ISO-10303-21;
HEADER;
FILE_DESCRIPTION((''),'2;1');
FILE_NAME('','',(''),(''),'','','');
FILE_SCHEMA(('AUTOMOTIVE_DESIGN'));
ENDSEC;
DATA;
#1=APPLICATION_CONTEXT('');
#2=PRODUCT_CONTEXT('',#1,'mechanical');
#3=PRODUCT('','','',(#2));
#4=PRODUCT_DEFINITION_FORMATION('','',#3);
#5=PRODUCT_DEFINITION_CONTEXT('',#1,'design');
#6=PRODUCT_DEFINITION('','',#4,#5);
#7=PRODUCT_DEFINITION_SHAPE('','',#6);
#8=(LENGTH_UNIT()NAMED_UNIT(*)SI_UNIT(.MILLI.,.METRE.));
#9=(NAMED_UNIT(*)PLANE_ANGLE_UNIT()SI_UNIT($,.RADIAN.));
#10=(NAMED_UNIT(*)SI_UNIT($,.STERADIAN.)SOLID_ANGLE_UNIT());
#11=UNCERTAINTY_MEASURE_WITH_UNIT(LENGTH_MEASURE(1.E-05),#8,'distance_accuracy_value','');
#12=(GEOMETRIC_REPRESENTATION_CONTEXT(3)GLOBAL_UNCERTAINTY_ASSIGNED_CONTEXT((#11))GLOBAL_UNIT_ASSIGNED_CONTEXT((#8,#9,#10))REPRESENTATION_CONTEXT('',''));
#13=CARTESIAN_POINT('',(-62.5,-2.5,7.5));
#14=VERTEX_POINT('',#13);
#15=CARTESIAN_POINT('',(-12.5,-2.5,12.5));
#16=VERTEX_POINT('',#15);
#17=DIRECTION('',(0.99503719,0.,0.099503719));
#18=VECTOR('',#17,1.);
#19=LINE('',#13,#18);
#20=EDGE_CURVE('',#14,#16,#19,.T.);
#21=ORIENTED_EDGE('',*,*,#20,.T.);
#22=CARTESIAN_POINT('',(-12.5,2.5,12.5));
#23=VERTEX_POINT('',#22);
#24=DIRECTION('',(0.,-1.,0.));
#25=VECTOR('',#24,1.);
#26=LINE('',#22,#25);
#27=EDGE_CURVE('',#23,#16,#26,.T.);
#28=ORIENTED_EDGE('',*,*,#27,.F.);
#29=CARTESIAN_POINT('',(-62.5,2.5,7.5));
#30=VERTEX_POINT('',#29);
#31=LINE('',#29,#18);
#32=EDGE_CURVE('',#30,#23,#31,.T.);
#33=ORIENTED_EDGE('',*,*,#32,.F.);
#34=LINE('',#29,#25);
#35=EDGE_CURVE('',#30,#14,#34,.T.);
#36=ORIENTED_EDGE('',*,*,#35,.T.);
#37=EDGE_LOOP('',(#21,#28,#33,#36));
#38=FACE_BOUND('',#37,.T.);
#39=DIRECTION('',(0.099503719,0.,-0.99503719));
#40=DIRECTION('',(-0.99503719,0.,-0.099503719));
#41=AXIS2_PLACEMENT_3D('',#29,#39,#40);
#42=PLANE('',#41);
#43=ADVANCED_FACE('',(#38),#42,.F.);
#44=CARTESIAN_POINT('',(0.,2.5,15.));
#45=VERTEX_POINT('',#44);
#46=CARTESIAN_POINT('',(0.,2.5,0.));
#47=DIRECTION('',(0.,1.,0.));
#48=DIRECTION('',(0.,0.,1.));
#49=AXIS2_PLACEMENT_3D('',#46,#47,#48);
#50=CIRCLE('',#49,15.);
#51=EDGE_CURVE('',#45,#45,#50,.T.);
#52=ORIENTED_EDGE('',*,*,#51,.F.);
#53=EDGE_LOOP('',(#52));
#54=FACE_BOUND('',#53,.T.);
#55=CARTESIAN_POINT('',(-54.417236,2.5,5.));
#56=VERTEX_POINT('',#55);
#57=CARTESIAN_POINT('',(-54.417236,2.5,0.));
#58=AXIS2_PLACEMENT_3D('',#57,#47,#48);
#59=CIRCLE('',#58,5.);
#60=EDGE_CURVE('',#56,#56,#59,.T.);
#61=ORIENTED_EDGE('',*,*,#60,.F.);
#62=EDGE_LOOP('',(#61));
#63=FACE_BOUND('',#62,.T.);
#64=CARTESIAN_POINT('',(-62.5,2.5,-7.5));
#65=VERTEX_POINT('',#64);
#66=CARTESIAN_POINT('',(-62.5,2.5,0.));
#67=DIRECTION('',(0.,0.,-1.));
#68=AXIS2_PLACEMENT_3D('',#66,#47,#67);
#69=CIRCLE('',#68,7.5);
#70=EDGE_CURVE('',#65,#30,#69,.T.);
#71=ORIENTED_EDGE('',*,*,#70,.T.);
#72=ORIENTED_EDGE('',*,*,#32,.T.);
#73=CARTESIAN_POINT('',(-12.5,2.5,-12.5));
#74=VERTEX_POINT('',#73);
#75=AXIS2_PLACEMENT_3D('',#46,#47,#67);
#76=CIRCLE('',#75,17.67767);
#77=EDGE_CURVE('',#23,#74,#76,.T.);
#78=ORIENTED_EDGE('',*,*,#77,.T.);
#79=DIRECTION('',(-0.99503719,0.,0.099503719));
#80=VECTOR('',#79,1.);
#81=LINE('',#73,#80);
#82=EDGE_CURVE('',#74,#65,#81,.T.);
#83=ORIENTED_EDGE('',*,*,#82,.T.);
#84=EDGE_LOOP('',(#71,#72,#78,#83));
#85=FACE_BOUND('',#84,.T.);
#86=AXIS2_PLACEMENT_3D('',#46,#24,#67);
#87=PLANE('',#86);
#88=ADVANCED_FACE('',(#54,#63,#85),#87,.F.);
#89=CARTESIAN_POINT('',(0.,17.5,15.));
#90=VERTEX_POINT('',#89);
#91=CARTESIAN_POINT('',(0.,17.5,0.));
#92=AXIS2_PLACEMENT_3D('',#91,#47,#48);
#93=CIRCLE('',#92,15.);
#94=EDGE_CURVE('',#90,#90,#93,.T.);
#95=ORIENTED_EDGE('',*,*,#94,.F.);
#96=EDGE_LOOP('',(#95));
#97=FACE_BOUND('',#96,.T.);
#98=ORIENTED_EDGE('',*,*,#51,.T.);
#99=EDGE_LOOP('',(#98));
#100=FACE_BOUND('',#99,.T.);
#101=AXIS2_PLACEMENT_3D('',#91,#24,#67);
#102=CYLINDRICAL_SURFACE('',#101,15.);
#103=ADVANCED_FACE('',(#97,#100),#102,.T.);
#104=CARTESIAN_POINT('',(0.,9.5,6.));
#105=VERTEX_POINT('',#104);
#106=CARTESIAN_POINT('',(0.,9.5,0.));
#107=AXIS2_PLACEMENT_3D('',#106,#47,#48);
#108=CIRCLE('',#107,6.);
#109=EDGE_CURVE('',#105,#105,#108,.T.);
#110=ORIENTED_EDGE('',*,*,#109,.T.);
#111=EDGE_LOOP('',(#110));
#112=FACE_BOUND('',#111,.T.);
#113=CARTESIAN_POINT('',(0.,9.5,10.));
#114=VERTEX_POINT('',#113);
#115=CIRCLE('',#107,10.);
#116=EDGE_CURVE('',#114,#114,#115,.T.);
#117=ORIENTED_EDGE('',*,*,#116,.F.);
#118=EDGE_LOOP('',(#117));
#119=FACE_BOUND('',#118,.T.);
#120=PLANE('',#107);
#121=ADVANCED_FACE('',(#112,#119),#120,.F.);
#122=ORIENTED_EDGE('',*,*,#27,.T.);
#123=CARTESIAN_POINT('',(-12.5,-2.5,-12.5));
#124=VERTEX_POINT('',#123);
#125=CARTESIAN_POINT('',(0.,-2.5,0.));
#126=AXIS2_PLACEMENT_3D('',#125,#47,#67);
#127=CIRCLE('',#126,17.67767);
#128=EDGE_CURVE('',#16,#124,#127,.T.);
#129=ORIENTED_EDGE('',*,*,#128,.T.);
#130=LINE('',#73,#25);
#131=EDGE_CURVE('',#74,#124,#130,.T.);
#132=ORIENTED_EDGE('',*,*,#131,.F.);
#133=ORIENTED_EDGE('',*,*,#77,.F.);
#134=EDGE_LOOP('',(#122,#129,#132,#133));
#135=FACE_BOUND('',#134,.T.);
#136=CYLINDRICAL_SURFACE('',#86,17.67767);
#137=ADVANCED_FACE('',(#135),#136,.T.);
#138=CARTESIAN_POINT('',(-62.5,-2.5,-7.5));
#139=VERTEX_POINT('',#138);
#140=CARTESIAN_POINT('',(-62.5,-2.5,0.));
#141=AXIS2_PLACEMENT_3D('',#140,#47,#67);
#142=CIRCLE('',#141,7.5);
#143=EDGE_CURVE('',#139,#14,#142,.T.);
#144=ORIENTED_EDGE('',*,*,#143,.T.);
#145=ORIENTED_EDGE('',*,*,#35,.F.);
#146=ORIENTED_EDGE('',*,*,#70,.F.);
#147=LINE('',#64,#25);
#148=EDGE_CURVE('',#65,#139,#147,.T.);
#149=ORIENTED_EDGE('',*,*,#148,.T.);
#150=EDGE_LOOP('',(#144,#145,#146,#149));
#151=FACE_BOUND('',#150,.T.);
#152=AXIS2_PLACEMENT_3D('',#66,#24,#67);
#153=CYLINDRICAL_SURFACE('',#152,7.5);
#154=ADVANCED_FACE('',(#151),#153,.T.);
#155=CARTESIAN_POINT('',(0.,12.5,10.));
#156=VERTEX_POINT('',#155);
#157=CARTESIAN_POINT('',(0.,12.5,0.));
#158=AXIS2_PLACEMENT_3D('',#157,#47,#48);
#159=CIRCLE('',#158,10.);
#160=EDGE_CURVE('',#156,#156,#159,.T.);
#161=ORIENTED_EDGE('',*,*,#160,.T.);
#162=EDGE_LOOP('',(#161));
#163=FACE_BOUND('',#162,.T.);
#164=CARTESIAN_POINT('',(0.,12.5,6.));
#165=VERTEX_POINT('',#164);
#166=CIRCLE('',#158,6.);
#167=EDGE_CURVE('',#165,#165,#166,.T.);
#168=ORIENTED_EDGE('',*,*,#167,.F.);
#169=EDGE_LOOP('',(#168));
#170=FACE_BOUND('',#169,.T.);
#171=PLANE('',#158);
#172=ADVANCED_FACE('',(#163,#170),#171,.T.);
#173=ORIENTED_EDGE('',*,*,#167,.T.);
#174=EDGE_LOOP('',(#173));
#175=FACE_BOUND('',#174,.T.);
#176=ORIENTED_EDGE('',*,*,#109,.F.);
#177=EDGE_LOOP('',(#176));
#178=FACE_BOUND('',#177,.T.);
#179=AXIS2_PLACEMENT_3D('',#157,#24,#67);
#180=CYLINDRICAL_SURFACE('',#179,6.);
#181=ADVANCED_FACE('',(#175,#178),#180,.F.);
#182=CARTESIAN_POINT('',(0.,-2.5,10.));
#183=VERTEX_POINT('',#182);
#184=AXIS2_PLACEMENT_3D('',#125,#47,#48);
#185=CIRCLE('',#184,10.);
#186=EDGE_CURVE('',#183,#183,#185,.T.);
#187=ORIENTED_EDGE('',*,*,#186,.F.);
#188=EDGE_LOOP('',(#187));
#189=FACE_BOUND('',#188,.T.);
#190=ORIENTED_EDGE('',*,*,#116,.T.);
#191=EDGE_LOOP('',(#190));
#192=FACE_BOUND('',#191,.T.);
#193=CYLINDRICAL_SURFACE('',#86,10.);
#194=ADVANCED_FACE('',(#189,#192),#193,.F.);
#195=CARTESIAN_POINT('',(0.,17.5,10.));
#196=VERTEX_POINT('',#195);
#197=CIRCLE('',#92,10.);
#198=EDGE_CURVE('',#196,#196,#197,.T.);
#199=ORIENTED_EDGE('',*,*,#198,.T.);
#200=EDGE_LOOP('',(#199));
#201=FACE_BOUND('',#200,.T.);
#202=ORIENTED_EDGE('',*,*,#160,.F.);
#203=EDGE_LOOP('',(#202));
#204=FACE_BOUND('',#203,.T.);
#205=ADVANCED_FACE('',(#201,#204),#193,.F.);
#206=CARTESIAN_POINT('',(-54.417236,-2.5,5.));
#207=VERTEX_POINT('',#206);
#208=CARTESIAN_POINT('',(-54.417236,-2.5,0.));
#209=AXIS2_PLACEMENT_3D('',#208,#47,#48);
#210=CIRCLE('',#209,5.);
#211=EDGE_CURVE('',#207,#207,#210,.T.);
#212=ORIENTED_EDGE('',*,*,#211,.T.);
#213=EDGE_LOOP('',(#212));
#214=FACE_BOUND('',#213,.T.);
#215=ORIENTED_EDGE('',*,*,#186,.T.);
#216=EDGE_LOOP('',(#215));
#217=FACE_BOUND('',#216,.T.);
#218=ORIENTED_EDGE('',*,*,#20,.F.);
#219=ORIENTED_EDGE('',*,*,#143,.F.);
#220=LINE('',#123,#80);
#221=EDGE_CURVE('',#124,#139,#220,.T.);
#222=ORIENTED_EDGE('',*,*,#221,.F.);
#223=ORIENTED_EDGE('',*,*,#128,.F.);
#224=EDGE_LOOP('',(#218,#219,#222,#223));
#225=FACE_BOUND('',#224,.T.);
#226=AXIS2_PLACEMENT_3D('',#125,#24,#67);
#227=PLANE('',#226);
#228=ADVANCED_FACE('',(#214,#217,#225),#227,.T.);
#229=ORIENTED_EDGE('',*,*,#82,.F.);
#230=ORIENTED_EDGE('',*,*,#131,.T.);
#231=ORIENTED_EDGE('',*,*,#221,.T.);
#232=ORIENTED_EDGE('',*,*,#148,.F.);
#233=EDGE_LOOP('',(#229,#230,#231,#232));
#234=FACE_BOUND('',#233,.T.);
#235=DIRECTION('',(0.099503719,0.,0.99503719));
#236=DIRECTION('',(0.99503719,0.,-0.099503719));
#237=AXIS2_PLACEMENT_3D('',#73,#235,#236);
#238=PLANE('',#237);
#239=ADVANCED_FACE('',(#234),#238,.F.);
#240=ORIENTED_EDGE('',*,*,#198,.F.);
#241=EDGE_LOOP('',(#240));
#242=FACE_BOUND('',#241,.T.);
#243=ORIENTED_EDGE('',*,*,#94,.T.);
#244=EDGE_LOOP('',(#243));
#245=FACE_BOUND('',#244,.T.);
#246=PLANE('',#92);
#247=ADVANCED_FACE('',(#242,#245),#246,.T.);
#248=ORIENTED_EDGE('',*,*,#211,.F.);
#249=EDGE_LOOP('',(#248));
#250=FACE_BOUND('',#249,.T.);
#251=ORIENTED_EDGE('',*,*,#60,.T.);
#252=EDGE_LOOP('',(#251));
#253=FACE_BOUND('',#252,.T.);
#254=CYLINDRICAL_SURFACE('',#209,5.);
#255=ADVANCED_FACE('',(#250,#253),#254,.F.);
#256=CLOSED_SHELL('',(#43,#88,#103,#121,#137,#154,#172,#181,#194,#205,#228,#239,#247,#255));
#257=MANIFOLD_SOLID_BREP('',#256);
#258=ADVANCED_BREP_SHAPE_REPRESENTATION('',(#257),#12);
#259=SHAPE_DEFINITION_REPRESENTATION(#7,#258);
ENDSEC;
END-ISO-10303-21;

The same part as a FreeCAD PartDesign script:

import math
import FreeCAD as App
import Part
import Sketcher

V = App.Vector
Q = App.Units.Quantity

doc = App.newDocument("Part")
body = doc.addObject("PartDesign::Body", "Body")

sketch1 = doc.addObject("Sketcher::SketchObject", "Sketch")
body.addObject(sketch1)
sketch1.AttachmentSupport = (doc.XZ_Plane, [""])
sketch1.MapMode = "FlatFace"
sketch1.addGeometry(Part.LineSegment(V(-12, -12, 0), V(-62, -8, 0)), False)
sketch1.addGeometry(Part.ArcOfCircle(Part.Circle(V(-62, 0, 0), V(0, 0, 1), 8), math.radians(90), math.radians(270)), False)
sketch1.addGeometry(Part.LineSegment(V(-62, 8, 0), V(-12, 12, 0)), False)
sketch1.addGeometry(Part.ArcOfCircle(Part.Circle(V(0, 0, 0), V(0, 0, 1), 18), math.radians(-135), math.radians(135)), False)
sketch1.addGeometry(Part.Circle(V(0, 0, 0), V(0, 0, 1), 10), False)
sketch1.addConstraint(Sketcher.Constraint("Coincident", 0, 2, 1, 2))
sketch1.addConstraint(Sketcher.Constraint("Coincident", 1, 1, 2, 1))
sketch1.addConstraint(Sketcher.Constraint("Coincident", 2, 2, 3, 2))
sketch1.addConstraint(Sketcher.Constraint("Coincident", 3, 1, 0, 1))
sketch1.addConstraint(Sketcher.Constraint("Coincident", 3, 3, -1, 1))
sketch1.addConstraint(Sketcher.Constraint("Coincident", 4, 3, -1, 1))
sketch1.addConstraint(Sketcher.Constraint("Symmetric", 0, 2, 1, 1, -1))
sketch1.addConstraint(Sketcher.Constraint("Vertical", 1, 3, 0, 2))
sketch1.addConstraint(Sketcher.Constraint("Vertical", 2, 2, 3, 1))
sketch1.addConstraint(Sketcher.Constraint("Diameter", 4, Q("20 mm")))
sketch1.addConstraint(Sketcher.Constraint("Radius", 1, Q("7.5 mm")))
sketch1.addConstraint(Sketcher.Constraint("DistanceX", 1, 1, 2, 2, Q("50 mm")))
sketch1.addConstraint(Sketcher.Constraint("DistanceY", 1, 1, 2, 2, Q("5 mm")))
sketch1.addConstraint(Sketcher.Constraint("DistanceX", 1, 3, -1, 1, Q("62.5 mm")))
pad1 = doc.addObject("PartDesign::Pad", "Pad")
body.addObject(pad1)
pad1.Profile = sketch1
pad1.Length = 5
pad1.Midplane = True

sketch2 = doc.addObject("Sketcher::SketchObject", "Sketch001")
body.addObject(sketch2)
sketch2.AttachmentSupport = (doc.XZ_Plane, [""])
sketch2.MapMode = "FlatFace"
sketch2.AttachmentOffset = App.Placement(V(0, 0, -2.5), App.Rotation())
sketch2.addGeometry(Part.Circle(V(0, 0, 0), V(0, 0, 1), 15), False)
sketch2.addGeometry(Part.Circle(V(0, 0, 0), V(0, 0, 1), 10), False)
sketch2.addConstraint(Sketcher.Constraint("Coincident", 0, 3, -1, 1))
sketch2.addConstraint(Sketcher.Constraint("Coincident", 1, 3, -1, 1))
sketch2.addConstraint(Sketcher.Constraint("Diameter", 0, Q("30 mm")))
sketch2.addConstraint(Sketcher.Constraint("Diameter", 1, Q("20 mm")))
pad2 = doc.addObject("PartDesign::Pad", "Pad001")
body.addObject(pad2)
pad2.Profile = sketch2
pad2.Length = 15
pad2.Reversed = True

sketch3 = doc.addObject("Sketcher::SketchObject", "Sketch002")
body.addObject(sketch3)
sketch3.AttachmentSupport = (doc.XZ_Plane, [""])
sketch3.MapMode = "FlatFace"
sketch3.AttachmentOffset = App.Placement(V(0, 0, -2.5), App.Rotation())
sketch3.addGeometry(Part.Circle(V(-54, 0, 0), V(0, 0, 1), 5), False)
sketch3.addConstraint(Sketcher.Constraint("PointOnObject", 0, 3, -1))
sketch3.addConstraint(Sketcher.Constraint("Diameter", 0, Q("10 mm")))
sketch3.addConstraint(Sketcher.Constraint("DistanceX", 0, 3, -1, 1, Q("54.417236 mm")))
pocket1 = doc.addObject("PartDesign::Pocket", "Pocket")
body.addObject(pocket1)
pocket1.Profile = sketch3
pocket1.Type = "ThroughAll"
pocket1.Reversed = True

sketch4 = doc.addObject("Sketcher::SketchObject", "Sketch003")
body.addObject(sketch4)
sketch4.AttachmentSupport = (doc.XZ_Plane, [""])
sketch4.MapMode = "FlatFace"
sketch4.AttachmentOffset = App.Placement(V(0, 0, -9.5), App.Rotation())
sketch4.addGeometry(Part.Circle(V(0, 0, 0), V(0, 0, 1), 10), False)
sketch4.addGeometry(Part.Circle(V(0, 0, 0), V(0, 0, 1), 6), False)
sketch4.addConstraint(Sketcher.Constraint("Coincident", 0, 3, -1, 1))
sketch4.addConstraint(Sketcher.Constraint("Coincident", 1, 3, -1, 1))
sketch4.addConstraint(Sketcher.Constraint("Diameter", 0, Q("20 mm")))
sketch4.addConstraint(Sketcher.Constraint("Diameter", 1, Q("12 mm")))
pad3 = doc.addObject("PartDesign::Pad", "Pad002")
body.addObject(pad3)
pad3.Profile = sketch4
pad3.Length = 3
pad3.Reversed = True

doc.recompute()
